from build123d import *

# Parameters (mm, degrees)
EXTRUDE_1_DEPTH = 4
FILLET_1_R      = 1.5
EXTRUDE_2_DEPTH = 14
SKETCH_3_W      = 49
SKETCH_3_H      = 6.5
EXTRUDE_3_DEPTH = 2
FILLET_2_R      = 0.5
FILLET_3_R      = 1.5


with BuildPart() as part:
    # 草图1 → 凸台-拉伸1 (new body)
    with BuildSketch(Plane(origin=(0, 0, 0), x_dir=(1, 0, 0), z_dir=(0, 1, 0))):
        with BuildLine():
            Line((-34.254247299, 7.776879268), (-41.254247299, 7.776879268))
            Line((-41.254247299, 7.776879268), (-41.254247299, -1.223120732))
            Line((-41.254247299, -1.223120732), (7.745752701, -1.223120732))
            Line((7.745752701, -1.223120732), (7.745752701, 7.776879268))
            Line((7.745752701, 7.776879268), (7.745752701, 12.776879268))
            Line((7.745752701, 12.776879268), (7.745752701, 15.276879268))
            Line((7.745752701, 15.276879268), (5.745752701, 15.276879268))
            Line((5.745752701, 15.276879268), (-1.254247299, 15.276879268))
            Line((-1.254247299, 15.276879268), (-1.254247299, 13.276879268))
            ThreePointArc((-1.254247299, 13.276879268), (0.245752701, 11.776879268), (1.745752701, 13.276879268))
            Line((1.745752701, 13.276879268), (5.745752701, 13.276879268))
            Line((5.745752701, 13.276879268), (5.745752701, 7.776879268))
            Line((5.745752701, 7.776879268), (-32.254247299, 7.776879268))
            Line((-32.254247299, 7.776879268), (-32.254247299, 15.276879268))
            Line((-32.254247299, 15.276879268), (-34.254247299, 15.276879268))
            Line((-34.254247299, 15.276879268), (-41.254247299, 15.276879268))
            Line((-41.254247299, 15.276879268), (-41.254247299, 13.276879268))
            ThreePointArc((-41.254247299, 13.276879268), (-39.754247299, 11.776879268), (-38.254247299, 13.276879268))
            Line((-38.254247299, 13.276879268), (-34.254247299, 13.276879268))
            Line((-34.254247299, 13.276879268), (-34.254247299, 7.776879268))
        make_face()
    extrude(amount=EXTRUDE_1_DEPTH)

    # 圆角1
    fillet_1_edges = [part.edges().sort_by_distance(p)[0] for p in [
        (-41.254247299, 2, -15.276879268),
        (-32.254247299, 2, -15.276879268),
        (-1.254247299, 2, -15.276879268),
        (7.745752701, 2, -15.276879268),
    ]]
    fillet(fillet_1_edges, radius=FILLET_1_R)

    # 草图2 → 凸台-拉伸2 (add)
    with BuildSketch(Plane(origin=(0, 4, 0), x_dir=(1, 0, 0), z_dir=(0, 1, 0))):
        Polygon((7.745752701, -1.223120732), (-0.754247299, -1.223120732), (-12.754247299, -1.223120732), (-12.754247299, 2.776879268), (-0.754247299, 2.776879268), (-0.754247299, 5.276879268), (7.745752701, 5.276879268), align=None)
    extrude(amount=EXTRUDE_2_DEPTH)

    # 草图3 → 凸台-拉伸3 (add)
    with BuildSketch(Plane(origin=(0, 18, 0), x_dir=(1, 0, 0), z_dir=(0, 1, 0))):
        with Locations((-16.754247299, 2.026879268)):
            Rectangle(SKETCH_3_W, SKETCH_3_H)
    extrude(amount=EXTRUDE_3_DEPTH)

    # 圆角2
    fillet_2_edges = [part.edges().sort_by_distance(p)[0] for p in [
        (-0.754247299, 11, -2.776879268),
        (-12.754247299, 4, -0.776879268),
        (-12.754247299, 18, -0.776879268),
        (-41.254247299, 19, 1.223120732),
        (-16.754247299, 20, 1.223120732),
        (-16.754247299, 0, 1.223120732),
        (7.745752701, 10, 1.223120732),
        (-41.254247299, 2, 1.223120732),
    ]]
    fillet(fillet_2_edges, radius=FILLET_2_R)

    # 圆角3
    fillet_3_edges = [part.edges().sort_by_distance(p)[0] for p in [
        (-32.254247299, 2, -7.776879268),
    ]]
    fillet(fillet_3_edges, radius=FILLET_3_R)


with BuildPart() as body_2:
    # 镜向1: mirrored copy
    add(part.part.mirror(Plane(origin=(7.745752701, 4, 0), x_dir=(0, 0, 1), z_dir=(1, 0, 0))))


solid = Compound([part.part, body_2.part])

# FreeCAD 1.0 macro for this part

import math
import FreeCAD as App
import Part
import Sketcher

V = App.Vector


def edges_at(feature, points):
    """Names of the edges that pass closest to the given points."""
    edges = feature.Shape.Edges
    near = lambda p: min(range(len(edges)), key=lambda i: edges[i].distToShape(Part.Vertex(*p))[0])
    return sorted({f"Edge{near(p) + 1}" for p in points})

doc = App.newDocument("Part")
body = doc.addObject("PartDesign::Body", "Body")

# Sketch on XZ plane
sketch1 = body.newObject("Sketcher::SketchObject", "Sketch")
sketch1.AttachmentSupport = (doc.getObject("XZ_Plane"), [""])
sketch1.MapMode = "FlatFace"
sketch1.addGeometry([
    Part.LineSegment(V(-34.3, -7.8, 0), V(-41.3, -7.8, 0)),  # 0
    Part.LineSegment(V(-41.3, -7.8, 0), V(-41.3, 1.2, 0)),  # 1
    Part.LineSegment(V(-41.3, 1.2, 0), V(7.7, 1.2, 0)),  # 2
    Part.LineSegment(V(7.7, 1.2, 0), V(7.7, -15.3, 0)),  # 3
    Part.LineSegment(V(7.7, -15.3, 0), V(-1.3, -15.3, 0)),  # 4
    Part.LineSegment(V(-1.3, -15.3, 0), V(-1.3, -13.3, 0)),  # 5
    Part.ArcOfCircle(Part.Circle(V(0.2, -13.3, 0), V(0, 0, 1), 1.5), math.radians(0), math.radians(180)),  # 6
    Part.LineSegment(V(1.7, -13.3, 0), V(5.7, -13.3, 0)),  # 7
    Part.LineSegment(V(5.7, -13.3, 0), V(5.7, -7.8, 0)),  # 8
    Part.LineSegment(V(5.7, -7.8, 0), V(-32.3, -7.8, 0)),  # 9
    Part.LineSegment(V(-32.3, -7.8, 0), V(-32.3, -15.3, 0)),  # 10
    Part.LineSegment(V(-32.3, -15.3, 0), V(-41.3, -15.3, 0)),  # 11
    Part.LineSegment(V(-41.3, -15.3, 0), V(-41.3, -13.3, 0)),  # 12
    Part.ArcOfCircle(Part.Circle(V(-39.8, -13.3, 0), V(0, 0, 1), 1.5), math.radians(0), math.radians(180)),  # 13
    Part.LineSegment(V(-38.3, -13.3, 0), V(-34.3, -13.3, 0)),  # 14
    Part.LineSegment(V(-34.3, -13.3, 0), V(-34.3, -7.8, 0)),  # 15
], False)
sketch1.addConstraint([
    Sketcher.Constraint("Coincident", 0, 2, 1, 1),
    Sketcher.Constraint("Coincident", 1, 2, 2, 1),
    Sketcher.Constraint("Coincident", 2, 2, 3, 1),
    Sketcher.Constraint("Coincident", 3, 2, 4, 1),
    Sketcher.Constraint("Coincident", 4, 2, 5, 1),
    Sketcher.Constraint("Tangent", 5, 2, 6, 2),
    Sketcher.Constraint("Coincident", 6, 1, 7, 1),
    Sketcher.Constraint("Coincident", 7, 2, 8, 1),
    Sketcher.Constraint("Coincident", 8, 2, 9, 1),
    Sketcher.Constraint("Coincident", 9, 2, 10, 1),
    Sketcher.Constraint("Coincident", 10, 2, 11, 1),
    Sketcher.Constraint("Coincident", 11, 2, 12, 1),
    Sketcher.Constraint("Tangent", 12, 2, 13, 2),
    Sketcher.Constraint("Coincident", 13, 1, 14, 1),
    Sketcher.Constraint("Coincident", 14, 2, 15, 1),
    Sketcher.Constraint("Coincident", 15, 2, 0, 1),
    Sketcher.Constraint("Horizontal", 0),
    Sketcher.Constraint("Vertical", 1),
    Sketcher.Constraint("Horizontal", 2),
    Sketcher.Constraint("Vertical", 3),
    Sketcher.Constraint("Horizontal", 4),
    Sketcher.Constraint("Vertical", 5),
    Sketcher.Constraint("Horizontal", 7),
    Sketcher.Constraint("Vertical", 8),
    Sketcher.Constraint("Horizontal", 9),
    Sketcher.Constraint("Vertical", 10),
    Sketcher.Constraint("Horizontal", 11),
    Sketcher.Constraint("Vertical", 12),
    Sketcher.Constraint("Horizontal", 14),
    Sketcher.Constraint("Vertical", 15),
    Sketcher.Constraint("Equal", 6, 13),
    Sketcher.Constraint("Horizontal", 6, 3, 13, 3),
    Sketcher.Constraint("Horizontal", 5, 2, 6, 1),
    Sketcher.Constraint("Horizontal", 0, 2, 8, 2),
    Sketcher.Constraint("Horizontal", 4, 2, 10, 2),
    Sketcher.Constraint("Horizontal", 12, 2, 13, 1),
    Sketcher.Constraint("Vertical", 1, 2, 11, 2),
    Sketcher.Constraint("Equal", 4, 11),
    Sketcher.Constraint("Equal", 7, 14),
    Sketcher.Constraint("Equal", 11, 1),
    Sketcher.Constraint("Radius", 6, 1.5),
    Sketcher.Constraint("DistanceX", 0, 2, 0, 1, 7.0),
    Sketcher.Constraint("DistanceX", 2, 1, 2, 2, 49.0),
    Sketcher.Constraint("DistanceX", 4, 2, 4, 1, 9.0),
    Sketcher.Constraint("DistanceY", 5, 1, 5, 2, 2.0),
    Sketcher.Constraint("DistanceY", 3, 2, 3, 1, 16.5),
    Sketcher.Constraint("DistanceY", 6, 3, -1, 1, 13.276879),
    Sketcher.Constraint("DistanceX", -1, 1, 6, 3, 0.245753),
])
pad1 = body.newObject("PartDesign::Pad", "Pad")
pad1.Profile = sketch1
pad1.Length = 4
pad1.Reversed = True
doc.recompute()

fillet = body.newObject("PartDesign::Fillet", "Fillet")
fillet.Base = (pad1, edges_at(pad1, [
    (-41.254, 2, -15.277),
    (-32.254, 2, -15.277),
    (-1.254, 2, -15.277),
    (7.746, 2, -15.277),
]))
fillet.Radius = 1.5

# Sketch on XZ plane
sketch2 = body.newObject("Sketcher::SketchObject", "Sketch001")
sketch2.AttachmentSupport = (doc.getObject("XZ_Plane"), [""])
sketch2.MapMode = "FlatFace"
sketch2.AttachmentOffset = App.Placement(V(0, 0, -4), App.Rotation())
sketch2.addGeometry([
    Part.LineSegment(V(-12.8, 1.2, 0), V(7.7, 1.2, 0)),  # 0
    Part.LineSegment(V(7.7, 1.2, 0), V(7.7, -5.3, 0)),  # 1
    Part.LineSegment(V(7.7, -5.3, 0), V(-0.8, -5.3, 0)),  # 2
    Part.LineSegment(V(-0.8, -5.3, 0), V(-0.8, -2.8, 0)),  # 3
    Part.LineSegment(V(-0.8, -2.8, 0), V(-12.8, -2.8, 0)),  # 4
    Part.LineSegment(V(-12.8, -2.8, 0), V(-12.8, 1.2, 0)),  # 5
], False)
sketch2.addConstraint([
    Sketcher.Constraint("Coincident", 0, 2, 1, 1),
    Sketcher.Constraint("Coincident", 1, 2, 2, 1),
    Sketcher.Constraint("Coincident", 2, 2, 3, 1),
    Sketcher.Constraint("Coincident", 3, 2, 4, 1),
    Sketcher.Constraint("Coincident", 4, 2, 5, 1),
    Sketcher.Constraint("Coincident", 5, 2, 0, 1),
    Sketcher.Constraint("Horizontal", 0),
    Sketcher.Constraint("Vertical", 1),
    Sketcher.Constraint("Horizontal", 2),
    Sketcher.Constraint("Vertical", 3),
    Sketcher.Constraint("Horizontal", 4),
    Sketcher.Constraint("Vertical", 5),
    Sketcher.Constraint("DistanceX", 4, 2, 4, 1, 12.0),
    Sketcher.Constraint("DistanceY", 5, 1, 5, 2, 4.0),
    Sketcher.Constraint("DistanceX", 0, 1, 0, 2, 20.5),
    Sketcher.Constraint("DistanceY", 1, 2, 1, 1, 6.5),
    Sketcher.Constraint("DistanceY", -1, 1, 0, 2, 1.223121),
    Sketcher.Constraint("DistanceX", -1, 1, 0, 2, 7.745753),
])
pad2 = body.newObject("PartDesign::Pad", "Pad001")
pad2.Profile = sketch2
pad2.Length = 14
pad2.Reversed = True

# Sketch on XZ plane
sketch3 = body.newObject("Sketcher::SketchObject", "Sketch002")
sketch3.AttachmentSupport = (doc.getObject("XZ_Plane"), [""])
sketch3.MapMode = "FlatFace"
sketch3.AttachmentOffset = App.Placement(V(0, 0, -18), App.Rotation())
sketch3.addGeometry([
    Part.LineSegment(V(-41, -5, 0), V(-41, 1, 0)),
    Part.LineSegment(V(-41, 1, 0), V(8, 1, 0)),
    Part.LineSegment(V(8, 1, 0), V(8, -5, 0)),
    Part.LineSegment(V(8, -5, 0), V(-41, -5, 0)),
], False)
sketch3.addConstraint([
    Sketcher.Constraint("Coincident", 0, 2, 1, 1),
    Sketcher.Constraint("Coincident", 1, 2, 2, 1),
    Sketcher.Constraint("Coincident", 2, 2, 3, 1),
    Sketcher.Constraint("Coincident", 3, 2, 0, 1),
    Sketcher.Constraint("Vertical", 0),
    Sketcher.Constraint("Horizontal", 1),
    Sketcher.Constraint("Vertical", 2),
    Sketcher.Constraint("Horizontal", 3),
    Sketcher.Constraint("DistanceX", 1, 1, 1, 2, 49.0),
    Sketcher.Constraint("DistanceY", 0, 1, 0, 2, 6.5),
    Sketcher.Constraint("DistanceY", -1, 1, 0, 2, 1.223121),
    Sketcher.Constraint("DistanceX", 0, 2, -1, 1, 41.254247),
])
pad3 = body.newObject("PartDesign::Pad", "Pad002")
pad3.Profile = sketch3
pad3.Length = 2
pad3.Reversed = True
doc.recompute()

fillet2 = body.newObject("PartDesign::Fillet", "Fillet001")
fillet2.Base = (pad3, edges_at(pad3, [
    (-0.754, 11, -2.777),
    (-12.754, 4, -0.777),
    (-12.754, 18, -0.777),
    (-41.254, 19, 1.223),
    (-16.754, 20, 1.223),
    (-16.754, 0, 1.223),
    (7.746, 10, 1.223),
    (-41.254, 2, 1.223),
]))
fillet2.Radius = 0.5
doc.recompute()

fillet3 = body.newObject("PartDesign::Fillet", "Fillet002")
fillet3.Base = (fillet2, edges_at(fillet2, [(-32.254, 2, -7.777)]))
fillet3.Radius = 1.5
body2 = doc.addObject("PartDesign::Body", "Body001")
doc.recompute()

mirroring = doc.addObject("Part::Mirroring", "Mirroring")
mirroring.Source = body
mirroring.Base = V(7.745753, 4, 0)
mirroring.Normal = V(1, 0, 0)
body2.BaseFeature = mirroring
doc.recompute()
mirroring.Visibility = False

doc.recompute()
